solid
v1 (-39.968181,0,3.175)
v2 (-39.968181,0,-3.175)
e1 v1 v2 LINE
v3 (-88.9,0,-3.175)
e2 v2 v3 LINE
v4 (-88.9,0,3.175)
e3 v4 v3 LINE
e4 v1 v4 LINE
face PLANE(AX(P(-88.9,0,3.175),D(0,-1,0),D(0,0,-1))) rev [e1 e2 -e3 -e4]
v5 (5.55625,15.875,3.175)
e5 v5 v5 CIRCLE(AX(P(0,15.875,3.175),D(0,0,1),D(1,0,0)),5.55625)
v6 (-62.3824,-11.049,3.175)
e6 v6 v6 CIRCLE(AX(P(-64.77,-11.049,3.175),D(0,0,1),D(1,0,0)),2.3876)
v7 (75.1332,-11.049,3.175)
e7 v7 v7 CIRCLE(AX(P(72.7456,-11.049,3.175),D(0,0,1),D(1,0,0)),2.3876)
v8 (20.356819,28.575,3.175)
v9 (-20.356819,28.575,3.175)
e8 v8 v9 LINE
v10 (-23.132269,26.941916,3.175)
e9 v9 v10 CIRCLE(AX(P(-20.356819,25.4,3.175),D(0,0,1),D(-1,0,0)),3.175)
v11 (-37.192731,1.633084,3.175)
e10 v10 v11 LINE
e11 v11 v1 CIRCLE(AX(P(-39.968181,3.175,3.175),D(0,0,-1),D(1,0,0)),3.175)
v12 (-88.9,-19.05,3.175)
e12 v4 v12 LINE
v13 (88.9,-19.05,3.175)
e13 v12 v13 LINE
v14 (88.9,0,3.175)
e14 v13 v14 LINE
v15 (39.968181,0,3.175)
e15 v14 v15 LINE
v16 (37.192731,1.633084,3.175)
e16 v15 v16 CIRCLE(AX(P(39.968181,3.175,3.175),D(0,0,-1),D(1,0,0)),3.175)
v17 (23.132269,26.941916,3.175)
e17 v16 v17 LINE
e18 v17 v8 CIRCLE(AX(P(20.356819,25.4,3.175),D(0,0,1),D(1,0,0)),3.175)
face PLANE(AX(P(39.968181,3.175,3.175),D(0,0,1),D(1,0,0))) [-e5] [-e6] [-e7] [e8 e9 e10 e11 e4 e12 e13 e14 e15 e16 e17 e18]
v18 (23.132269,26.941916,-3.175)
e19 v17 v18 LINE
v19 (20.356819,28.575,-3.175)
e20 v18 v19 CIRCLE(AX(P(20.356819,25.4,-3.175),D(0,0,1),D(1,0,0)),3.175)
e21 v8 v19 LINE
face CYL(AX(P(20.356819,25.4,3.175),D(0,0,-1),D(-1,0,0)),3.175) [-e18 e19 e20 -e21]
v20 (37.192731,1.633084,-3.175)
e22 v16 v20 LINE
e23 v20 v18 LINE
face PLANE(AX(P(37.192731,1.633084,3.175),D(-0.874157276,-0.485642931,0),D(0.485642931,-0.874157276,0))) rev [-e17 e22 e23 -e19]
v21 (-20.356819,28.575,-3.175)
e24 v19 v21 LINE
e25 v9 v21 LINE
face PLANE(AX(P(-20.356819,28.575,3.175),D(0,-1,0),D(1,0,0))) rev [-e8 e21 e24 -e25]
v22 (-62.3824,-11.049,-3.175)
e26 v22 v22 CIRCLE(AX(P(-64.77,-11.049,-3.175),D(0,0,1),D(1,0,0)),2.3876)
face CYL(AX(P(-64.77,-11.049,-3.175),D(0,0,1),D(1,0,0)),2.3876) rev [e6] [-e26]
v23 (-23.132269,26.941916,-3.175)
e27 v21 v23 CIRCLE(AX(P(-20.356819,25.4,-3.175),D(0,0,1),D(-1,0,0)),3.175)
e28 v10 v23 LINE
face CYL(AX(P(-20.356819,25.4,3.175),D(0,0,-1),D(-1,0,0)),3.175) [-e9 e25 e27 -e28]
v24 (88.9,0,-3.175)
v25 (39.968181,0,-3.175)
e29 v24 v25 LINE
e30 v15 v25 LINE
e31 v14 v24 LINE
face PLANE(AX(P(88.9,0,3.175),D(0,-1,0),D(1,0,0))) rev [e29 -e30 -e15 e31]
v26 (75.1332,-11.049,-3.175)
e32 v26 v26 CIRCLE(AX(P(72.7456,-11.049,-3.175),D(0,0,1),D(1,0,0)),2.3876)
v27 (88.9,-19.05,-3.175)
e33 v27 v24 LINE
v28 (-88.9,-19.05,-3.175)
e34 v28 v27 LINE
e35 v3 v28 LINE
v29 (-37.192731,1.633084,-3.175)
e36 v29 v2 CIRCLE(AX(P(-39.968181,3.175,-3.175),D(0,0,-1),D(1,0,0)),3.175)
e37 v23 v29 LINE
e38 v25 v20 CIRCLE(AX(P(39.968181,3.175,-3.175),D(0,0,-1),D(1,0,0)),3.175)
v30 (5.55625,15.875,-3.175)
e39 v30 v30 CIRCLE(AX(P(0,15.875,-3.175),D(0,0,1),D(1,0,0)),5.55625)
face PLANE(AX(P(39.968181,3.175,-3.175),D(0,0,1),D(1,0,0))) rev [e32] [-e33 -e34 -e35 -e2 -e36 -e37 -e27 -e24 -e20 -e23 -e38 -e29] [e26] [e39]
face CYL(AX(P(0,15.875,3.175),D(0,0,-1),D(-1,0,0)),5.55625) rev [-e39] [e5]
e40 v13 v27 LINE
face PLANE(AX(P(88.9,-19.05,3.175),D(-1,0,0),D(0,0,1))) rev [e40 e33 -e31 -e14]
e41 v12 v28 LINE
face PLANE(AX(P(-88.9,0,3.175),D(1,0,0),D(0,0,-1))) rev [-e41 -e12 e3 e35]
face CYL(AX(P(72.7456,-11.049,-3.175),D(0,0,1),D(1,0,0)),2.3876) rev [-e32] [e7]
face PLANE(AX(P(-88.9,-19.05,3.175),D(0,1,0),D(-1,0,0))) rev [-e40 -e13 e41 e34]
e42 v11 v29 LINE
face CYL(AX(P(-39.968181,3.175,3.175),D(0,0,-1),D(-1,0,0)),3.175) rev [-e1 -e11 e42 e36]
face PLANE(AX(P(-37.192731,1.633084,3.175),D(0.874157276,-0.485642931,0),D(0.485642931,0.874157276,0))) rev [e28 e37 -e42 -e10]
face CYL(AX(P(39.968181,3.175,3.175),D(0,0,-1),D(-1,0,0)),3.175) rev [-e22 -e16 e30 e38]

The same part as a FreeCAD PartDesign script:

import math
import FreeCAD as App
import Part
import Sketcher

V = App.Vector
Q = App.Units.Quantity

doc = App.newDocument("Part")
params = doc.addObject("Spreadsheet::Sheet", "Params")
for row, (alias, value) in enumerate([
    ("sketch1_width", "7 in"),
    ("sketch1_diameter", "0.4375 in"),
    ("sketch1_radius", "0.125 in"),
    ("sketch1_height", "0.75 in"),
    ("pad1_length", "0.25 in"),
    ("sketch2_diameter", "0.188 in"),
], start=1):
    params.set(f"A{row}", alias)
    params.set(f"B{row}", "=" + value)
    params.setAlias(f"B{row}", alias)

body = doc.addObject("PartDesign::Body", "Body")

# Sketch on XY plane
sketch1 = body.newObject("Sketcher::SketchObject", "Sketch")
sketch1.AttachmentSupport = (doc.getObject("XY_Plane"), [""])
sketch1.MapMode = "FlatFace"
sketch1.addGeometry(Part.LineSegment(V(-40, 0, 0), V(-88.9, 0, 0)), False)
sketch1.addGeometry(Part.LineSegment(V(-88.9, 0, 0), V(-88.9, -19.1, 0)), False)
sketch1.addGeometry(Part.LineSegment(V(-88.9, -19.1, 0), V(88.9, -19.1, 0)), False)
sketch1.addGeometry(Part.LineSegment(V(88.9, -19.1, 0), V(88.9, 0, 0)), False)
sketch1.addGeometry(Part.LineSegment(V(88.9, 0, 0), V(40, 0, 0)), False)
sketch1.addGeometry(Part.ArcOfCircle(Part.Circle(V(40, 3.2, 0), V(0, 0, 1), 3.2), math.radians(-151), math.radians(-90)), False)
sketch1.addGeometry(Part.LineSegment(V(37.2, 1.6, 0), V(23.1, 26.9, 0)), False)
sketch1.addGeometry(Part.ArcOfCircle(Part.Circle(V(20.4, 25.4, 0), V(0, 0, 1), 3.2), math.radians(29), math.radians(90)), False)
sketch1.addGeometry(Part.LineSegment(V(20.4, 28.6, 0), V(-20.4, 28.6, 0)), False)
sketch1.addGeometry(Part.ArcOfCircle(Part.Circle(V(-20.4, 25.4, 0), V(0, 0, 1), 3.2), math.radians(90), math.radians(151)), False)
sketch1.addGeometry(Part.LineSegment(V(-23.1, 26.9, 0), V(-37.2, 1.6, 0)), False)
sketch1.addGeometry(Part.ArcOfCircle(Part.Circle(V(-40, 3.2, 0), V(0, 0, 1), 3.2), math.radians(-90), math.radians(-29)), False)
sketch1.addGeometry(Part.Circle(V(0, 15.9, 0), V(0, 0, 1), 5.6), False)
sketch1.addConstraint(Sketcher.Constraint("Coincident", 0, 2, 1, 1))
sketch1.addConstraint(Sketcher.Constraint("Coincident", 1, 2, 2, 1))
sketch1.addConstraint(Sketcher.Constraint("Coincident", 2, 2, 3, 1))
sketch1.addConstraint(Sketcher.Constraint("Coincident", 3, 2, 4, 1))
sketch1.addConstraint(Sketcher.Constraint("Tangent", 4, 2, 5, 2))
sketch1.addConstraint(Sketcher.Constraint("Tangent", 5, 1, 6, 1))
sketch1.addConstraint(Sketcher.Constraint("Tangent", 6, 2, 7, 1))
sketch1.addConstraint(Sketcher.Constraint("Tangent", 7, 2, 8, 1))
sketch1.addConstraint(Sketcher.Constraint("Tangent", 8, 2, 9, 1))
sketch1.addConstraint(Sketcher.Constraint("Tangent", 9, 2, 10, 1))
sketch1.addConstraint(Sketcher.Constraint("Tangent", 10, 2, 11, 2))
sketch1.addConstraint(Sketcher.Constraint("Tangent", 11, 1, 0, 1))
sketch1.addConstraint(Sketcher.Constraint("Horizontal", 0))
sketch1.addConstraint(Sketcher.Constraint("Vertical", 1))
sketch1.addConstraint(Sketcher.Constraint("Horizontal", 2))
sketch1.addConstraint(Sketcher.Constraint("Vertical", 3))
sketch1.addConstraint(Sketcher.Constraint("Horizontal", 4))
sketch1.addConstraint(Sketcher.Constraint("Horizontal", 8))
sketch1.addConstraint(Sketcher.Constraint("Equal", 5, 7))
sketch1.addConstraint(Sketcher.Constraint("Equal", 7, 9))
sketch1.addConstraint(Sketcher.Constraint("Equal", 9, 11))
sketch1.addConstraint(Sketcher.Constraint("Symmetric", 0, 2, 3, 2, -1, 1))
sketch1.addConstraint(Sketcher.Constraint("Symmetric", 5, 3, 11, 3, -2))
sketch1.addConstraint(Sketcher.Constraint("PointOnObject", 12, 3, -2))
sketch1.addConstraint(Sketcher.Constraint("Horizontal", 6, 2, 9, 2))
sketch1.addConstraint(Sketcher.Constraint("DistanceX", 2, 1, 2, 2, Q("7 in")))
sketch1.addConstraint(Sketcher.Constraint("Diameter", 12, Q("0.4375 in")))
sketch1.addConstraint(Sketcher.Constraint("DistanceY", -1, 1, 7, 3, Q("1 in")))
sketch1.addConstraint(Sketcher.Constraint("Radius", 5, Q("0.125 in")))
sketch1.addConstraint(Sketcher.Constraint("DistanceY", 1, 2, 1, 1, Q("0.75 in")))
sketch1.addConstraint(Sketcher.Constraint("DistanceY", 5, 3, 12, 3, Q("0.5 in")))
sketch1.addConstraint(Sketcher.Constraint("DistanceX", 9, 3, 5, 3, Q("2.375 in")))
sketch1.addConstraint(Sketcher.Constraint("DistanceX", 0, 2, 0, 1, 48.931819))
sketch1.setExpression("Constraints[25]", "Params.sketch1_width")
sketch1.setExpression("Constraints[26]", "Params.sketch1_diameter")
sketch1.setExpression("Constraints[28]", "Params.sketch1_radius")
sketch1.setExpression("Constraints[29]", "Params.sketch1_height")
pad1 = body.newObject("PartDesign::Pad", "Pad")
pad1.Profile = sketch1
pad1.setExpression("Length", "Params.pad1_length")
pad1.Midplane = True

# Sketch on XY plane
sketch2 = body.newObject("Sketcher::SketchObject", "Sketch001")
sketch2.AttachmentSupport = (doc.getObject("XY_Plane"), [""])
sketch2.MapMode = "FlatFace"
sketch2.AttachmentOffset = App.Placement(V(0, 0, 0.125 * 25.4), App.Rotation())
sketch2.addGeometry(Part.Circle(V(-64.8, -11, 0), V(0, 0, 1), 2.4), False)
sketch2.addGeometry(Part.Circle(V(72.7, -11, 0), V(0, 0, 1), 2.4), False)
sketch2.addConstraint(Sketcher.Constraint("Equal", 0, 1))
sketch2.addConstraint(Sketcher.Constraint("Horizontal", 0, 3, 1, 3))
sketch2.addConstraint(Sketcher.Constraint("Diameter", 0, Q("0.188 in")))
sketch2.addConstraint(Sketcher.Constraint("DistanceX", 0, 3, -1, 1, Q("2.55 in")))
sketch2.addConstraint(Sketcher.Constraint("DistanceY", 0, 3, -1, 1, Q("0.435 in")))
sketch2.addConstraint(Sketcher.Constraint("DistanceX", -1, 1, 1, 3, Q("2.864 in")))
sketch2.setExpression("Constraints[2]", "Params.sketch2_diameter")
pocket1 = body.newObject("PartDesign::Pocket", "Pocket")
pocket1.Profile = sketch2
pocket1.Type = "ThroughAll"

doc.recompute()
